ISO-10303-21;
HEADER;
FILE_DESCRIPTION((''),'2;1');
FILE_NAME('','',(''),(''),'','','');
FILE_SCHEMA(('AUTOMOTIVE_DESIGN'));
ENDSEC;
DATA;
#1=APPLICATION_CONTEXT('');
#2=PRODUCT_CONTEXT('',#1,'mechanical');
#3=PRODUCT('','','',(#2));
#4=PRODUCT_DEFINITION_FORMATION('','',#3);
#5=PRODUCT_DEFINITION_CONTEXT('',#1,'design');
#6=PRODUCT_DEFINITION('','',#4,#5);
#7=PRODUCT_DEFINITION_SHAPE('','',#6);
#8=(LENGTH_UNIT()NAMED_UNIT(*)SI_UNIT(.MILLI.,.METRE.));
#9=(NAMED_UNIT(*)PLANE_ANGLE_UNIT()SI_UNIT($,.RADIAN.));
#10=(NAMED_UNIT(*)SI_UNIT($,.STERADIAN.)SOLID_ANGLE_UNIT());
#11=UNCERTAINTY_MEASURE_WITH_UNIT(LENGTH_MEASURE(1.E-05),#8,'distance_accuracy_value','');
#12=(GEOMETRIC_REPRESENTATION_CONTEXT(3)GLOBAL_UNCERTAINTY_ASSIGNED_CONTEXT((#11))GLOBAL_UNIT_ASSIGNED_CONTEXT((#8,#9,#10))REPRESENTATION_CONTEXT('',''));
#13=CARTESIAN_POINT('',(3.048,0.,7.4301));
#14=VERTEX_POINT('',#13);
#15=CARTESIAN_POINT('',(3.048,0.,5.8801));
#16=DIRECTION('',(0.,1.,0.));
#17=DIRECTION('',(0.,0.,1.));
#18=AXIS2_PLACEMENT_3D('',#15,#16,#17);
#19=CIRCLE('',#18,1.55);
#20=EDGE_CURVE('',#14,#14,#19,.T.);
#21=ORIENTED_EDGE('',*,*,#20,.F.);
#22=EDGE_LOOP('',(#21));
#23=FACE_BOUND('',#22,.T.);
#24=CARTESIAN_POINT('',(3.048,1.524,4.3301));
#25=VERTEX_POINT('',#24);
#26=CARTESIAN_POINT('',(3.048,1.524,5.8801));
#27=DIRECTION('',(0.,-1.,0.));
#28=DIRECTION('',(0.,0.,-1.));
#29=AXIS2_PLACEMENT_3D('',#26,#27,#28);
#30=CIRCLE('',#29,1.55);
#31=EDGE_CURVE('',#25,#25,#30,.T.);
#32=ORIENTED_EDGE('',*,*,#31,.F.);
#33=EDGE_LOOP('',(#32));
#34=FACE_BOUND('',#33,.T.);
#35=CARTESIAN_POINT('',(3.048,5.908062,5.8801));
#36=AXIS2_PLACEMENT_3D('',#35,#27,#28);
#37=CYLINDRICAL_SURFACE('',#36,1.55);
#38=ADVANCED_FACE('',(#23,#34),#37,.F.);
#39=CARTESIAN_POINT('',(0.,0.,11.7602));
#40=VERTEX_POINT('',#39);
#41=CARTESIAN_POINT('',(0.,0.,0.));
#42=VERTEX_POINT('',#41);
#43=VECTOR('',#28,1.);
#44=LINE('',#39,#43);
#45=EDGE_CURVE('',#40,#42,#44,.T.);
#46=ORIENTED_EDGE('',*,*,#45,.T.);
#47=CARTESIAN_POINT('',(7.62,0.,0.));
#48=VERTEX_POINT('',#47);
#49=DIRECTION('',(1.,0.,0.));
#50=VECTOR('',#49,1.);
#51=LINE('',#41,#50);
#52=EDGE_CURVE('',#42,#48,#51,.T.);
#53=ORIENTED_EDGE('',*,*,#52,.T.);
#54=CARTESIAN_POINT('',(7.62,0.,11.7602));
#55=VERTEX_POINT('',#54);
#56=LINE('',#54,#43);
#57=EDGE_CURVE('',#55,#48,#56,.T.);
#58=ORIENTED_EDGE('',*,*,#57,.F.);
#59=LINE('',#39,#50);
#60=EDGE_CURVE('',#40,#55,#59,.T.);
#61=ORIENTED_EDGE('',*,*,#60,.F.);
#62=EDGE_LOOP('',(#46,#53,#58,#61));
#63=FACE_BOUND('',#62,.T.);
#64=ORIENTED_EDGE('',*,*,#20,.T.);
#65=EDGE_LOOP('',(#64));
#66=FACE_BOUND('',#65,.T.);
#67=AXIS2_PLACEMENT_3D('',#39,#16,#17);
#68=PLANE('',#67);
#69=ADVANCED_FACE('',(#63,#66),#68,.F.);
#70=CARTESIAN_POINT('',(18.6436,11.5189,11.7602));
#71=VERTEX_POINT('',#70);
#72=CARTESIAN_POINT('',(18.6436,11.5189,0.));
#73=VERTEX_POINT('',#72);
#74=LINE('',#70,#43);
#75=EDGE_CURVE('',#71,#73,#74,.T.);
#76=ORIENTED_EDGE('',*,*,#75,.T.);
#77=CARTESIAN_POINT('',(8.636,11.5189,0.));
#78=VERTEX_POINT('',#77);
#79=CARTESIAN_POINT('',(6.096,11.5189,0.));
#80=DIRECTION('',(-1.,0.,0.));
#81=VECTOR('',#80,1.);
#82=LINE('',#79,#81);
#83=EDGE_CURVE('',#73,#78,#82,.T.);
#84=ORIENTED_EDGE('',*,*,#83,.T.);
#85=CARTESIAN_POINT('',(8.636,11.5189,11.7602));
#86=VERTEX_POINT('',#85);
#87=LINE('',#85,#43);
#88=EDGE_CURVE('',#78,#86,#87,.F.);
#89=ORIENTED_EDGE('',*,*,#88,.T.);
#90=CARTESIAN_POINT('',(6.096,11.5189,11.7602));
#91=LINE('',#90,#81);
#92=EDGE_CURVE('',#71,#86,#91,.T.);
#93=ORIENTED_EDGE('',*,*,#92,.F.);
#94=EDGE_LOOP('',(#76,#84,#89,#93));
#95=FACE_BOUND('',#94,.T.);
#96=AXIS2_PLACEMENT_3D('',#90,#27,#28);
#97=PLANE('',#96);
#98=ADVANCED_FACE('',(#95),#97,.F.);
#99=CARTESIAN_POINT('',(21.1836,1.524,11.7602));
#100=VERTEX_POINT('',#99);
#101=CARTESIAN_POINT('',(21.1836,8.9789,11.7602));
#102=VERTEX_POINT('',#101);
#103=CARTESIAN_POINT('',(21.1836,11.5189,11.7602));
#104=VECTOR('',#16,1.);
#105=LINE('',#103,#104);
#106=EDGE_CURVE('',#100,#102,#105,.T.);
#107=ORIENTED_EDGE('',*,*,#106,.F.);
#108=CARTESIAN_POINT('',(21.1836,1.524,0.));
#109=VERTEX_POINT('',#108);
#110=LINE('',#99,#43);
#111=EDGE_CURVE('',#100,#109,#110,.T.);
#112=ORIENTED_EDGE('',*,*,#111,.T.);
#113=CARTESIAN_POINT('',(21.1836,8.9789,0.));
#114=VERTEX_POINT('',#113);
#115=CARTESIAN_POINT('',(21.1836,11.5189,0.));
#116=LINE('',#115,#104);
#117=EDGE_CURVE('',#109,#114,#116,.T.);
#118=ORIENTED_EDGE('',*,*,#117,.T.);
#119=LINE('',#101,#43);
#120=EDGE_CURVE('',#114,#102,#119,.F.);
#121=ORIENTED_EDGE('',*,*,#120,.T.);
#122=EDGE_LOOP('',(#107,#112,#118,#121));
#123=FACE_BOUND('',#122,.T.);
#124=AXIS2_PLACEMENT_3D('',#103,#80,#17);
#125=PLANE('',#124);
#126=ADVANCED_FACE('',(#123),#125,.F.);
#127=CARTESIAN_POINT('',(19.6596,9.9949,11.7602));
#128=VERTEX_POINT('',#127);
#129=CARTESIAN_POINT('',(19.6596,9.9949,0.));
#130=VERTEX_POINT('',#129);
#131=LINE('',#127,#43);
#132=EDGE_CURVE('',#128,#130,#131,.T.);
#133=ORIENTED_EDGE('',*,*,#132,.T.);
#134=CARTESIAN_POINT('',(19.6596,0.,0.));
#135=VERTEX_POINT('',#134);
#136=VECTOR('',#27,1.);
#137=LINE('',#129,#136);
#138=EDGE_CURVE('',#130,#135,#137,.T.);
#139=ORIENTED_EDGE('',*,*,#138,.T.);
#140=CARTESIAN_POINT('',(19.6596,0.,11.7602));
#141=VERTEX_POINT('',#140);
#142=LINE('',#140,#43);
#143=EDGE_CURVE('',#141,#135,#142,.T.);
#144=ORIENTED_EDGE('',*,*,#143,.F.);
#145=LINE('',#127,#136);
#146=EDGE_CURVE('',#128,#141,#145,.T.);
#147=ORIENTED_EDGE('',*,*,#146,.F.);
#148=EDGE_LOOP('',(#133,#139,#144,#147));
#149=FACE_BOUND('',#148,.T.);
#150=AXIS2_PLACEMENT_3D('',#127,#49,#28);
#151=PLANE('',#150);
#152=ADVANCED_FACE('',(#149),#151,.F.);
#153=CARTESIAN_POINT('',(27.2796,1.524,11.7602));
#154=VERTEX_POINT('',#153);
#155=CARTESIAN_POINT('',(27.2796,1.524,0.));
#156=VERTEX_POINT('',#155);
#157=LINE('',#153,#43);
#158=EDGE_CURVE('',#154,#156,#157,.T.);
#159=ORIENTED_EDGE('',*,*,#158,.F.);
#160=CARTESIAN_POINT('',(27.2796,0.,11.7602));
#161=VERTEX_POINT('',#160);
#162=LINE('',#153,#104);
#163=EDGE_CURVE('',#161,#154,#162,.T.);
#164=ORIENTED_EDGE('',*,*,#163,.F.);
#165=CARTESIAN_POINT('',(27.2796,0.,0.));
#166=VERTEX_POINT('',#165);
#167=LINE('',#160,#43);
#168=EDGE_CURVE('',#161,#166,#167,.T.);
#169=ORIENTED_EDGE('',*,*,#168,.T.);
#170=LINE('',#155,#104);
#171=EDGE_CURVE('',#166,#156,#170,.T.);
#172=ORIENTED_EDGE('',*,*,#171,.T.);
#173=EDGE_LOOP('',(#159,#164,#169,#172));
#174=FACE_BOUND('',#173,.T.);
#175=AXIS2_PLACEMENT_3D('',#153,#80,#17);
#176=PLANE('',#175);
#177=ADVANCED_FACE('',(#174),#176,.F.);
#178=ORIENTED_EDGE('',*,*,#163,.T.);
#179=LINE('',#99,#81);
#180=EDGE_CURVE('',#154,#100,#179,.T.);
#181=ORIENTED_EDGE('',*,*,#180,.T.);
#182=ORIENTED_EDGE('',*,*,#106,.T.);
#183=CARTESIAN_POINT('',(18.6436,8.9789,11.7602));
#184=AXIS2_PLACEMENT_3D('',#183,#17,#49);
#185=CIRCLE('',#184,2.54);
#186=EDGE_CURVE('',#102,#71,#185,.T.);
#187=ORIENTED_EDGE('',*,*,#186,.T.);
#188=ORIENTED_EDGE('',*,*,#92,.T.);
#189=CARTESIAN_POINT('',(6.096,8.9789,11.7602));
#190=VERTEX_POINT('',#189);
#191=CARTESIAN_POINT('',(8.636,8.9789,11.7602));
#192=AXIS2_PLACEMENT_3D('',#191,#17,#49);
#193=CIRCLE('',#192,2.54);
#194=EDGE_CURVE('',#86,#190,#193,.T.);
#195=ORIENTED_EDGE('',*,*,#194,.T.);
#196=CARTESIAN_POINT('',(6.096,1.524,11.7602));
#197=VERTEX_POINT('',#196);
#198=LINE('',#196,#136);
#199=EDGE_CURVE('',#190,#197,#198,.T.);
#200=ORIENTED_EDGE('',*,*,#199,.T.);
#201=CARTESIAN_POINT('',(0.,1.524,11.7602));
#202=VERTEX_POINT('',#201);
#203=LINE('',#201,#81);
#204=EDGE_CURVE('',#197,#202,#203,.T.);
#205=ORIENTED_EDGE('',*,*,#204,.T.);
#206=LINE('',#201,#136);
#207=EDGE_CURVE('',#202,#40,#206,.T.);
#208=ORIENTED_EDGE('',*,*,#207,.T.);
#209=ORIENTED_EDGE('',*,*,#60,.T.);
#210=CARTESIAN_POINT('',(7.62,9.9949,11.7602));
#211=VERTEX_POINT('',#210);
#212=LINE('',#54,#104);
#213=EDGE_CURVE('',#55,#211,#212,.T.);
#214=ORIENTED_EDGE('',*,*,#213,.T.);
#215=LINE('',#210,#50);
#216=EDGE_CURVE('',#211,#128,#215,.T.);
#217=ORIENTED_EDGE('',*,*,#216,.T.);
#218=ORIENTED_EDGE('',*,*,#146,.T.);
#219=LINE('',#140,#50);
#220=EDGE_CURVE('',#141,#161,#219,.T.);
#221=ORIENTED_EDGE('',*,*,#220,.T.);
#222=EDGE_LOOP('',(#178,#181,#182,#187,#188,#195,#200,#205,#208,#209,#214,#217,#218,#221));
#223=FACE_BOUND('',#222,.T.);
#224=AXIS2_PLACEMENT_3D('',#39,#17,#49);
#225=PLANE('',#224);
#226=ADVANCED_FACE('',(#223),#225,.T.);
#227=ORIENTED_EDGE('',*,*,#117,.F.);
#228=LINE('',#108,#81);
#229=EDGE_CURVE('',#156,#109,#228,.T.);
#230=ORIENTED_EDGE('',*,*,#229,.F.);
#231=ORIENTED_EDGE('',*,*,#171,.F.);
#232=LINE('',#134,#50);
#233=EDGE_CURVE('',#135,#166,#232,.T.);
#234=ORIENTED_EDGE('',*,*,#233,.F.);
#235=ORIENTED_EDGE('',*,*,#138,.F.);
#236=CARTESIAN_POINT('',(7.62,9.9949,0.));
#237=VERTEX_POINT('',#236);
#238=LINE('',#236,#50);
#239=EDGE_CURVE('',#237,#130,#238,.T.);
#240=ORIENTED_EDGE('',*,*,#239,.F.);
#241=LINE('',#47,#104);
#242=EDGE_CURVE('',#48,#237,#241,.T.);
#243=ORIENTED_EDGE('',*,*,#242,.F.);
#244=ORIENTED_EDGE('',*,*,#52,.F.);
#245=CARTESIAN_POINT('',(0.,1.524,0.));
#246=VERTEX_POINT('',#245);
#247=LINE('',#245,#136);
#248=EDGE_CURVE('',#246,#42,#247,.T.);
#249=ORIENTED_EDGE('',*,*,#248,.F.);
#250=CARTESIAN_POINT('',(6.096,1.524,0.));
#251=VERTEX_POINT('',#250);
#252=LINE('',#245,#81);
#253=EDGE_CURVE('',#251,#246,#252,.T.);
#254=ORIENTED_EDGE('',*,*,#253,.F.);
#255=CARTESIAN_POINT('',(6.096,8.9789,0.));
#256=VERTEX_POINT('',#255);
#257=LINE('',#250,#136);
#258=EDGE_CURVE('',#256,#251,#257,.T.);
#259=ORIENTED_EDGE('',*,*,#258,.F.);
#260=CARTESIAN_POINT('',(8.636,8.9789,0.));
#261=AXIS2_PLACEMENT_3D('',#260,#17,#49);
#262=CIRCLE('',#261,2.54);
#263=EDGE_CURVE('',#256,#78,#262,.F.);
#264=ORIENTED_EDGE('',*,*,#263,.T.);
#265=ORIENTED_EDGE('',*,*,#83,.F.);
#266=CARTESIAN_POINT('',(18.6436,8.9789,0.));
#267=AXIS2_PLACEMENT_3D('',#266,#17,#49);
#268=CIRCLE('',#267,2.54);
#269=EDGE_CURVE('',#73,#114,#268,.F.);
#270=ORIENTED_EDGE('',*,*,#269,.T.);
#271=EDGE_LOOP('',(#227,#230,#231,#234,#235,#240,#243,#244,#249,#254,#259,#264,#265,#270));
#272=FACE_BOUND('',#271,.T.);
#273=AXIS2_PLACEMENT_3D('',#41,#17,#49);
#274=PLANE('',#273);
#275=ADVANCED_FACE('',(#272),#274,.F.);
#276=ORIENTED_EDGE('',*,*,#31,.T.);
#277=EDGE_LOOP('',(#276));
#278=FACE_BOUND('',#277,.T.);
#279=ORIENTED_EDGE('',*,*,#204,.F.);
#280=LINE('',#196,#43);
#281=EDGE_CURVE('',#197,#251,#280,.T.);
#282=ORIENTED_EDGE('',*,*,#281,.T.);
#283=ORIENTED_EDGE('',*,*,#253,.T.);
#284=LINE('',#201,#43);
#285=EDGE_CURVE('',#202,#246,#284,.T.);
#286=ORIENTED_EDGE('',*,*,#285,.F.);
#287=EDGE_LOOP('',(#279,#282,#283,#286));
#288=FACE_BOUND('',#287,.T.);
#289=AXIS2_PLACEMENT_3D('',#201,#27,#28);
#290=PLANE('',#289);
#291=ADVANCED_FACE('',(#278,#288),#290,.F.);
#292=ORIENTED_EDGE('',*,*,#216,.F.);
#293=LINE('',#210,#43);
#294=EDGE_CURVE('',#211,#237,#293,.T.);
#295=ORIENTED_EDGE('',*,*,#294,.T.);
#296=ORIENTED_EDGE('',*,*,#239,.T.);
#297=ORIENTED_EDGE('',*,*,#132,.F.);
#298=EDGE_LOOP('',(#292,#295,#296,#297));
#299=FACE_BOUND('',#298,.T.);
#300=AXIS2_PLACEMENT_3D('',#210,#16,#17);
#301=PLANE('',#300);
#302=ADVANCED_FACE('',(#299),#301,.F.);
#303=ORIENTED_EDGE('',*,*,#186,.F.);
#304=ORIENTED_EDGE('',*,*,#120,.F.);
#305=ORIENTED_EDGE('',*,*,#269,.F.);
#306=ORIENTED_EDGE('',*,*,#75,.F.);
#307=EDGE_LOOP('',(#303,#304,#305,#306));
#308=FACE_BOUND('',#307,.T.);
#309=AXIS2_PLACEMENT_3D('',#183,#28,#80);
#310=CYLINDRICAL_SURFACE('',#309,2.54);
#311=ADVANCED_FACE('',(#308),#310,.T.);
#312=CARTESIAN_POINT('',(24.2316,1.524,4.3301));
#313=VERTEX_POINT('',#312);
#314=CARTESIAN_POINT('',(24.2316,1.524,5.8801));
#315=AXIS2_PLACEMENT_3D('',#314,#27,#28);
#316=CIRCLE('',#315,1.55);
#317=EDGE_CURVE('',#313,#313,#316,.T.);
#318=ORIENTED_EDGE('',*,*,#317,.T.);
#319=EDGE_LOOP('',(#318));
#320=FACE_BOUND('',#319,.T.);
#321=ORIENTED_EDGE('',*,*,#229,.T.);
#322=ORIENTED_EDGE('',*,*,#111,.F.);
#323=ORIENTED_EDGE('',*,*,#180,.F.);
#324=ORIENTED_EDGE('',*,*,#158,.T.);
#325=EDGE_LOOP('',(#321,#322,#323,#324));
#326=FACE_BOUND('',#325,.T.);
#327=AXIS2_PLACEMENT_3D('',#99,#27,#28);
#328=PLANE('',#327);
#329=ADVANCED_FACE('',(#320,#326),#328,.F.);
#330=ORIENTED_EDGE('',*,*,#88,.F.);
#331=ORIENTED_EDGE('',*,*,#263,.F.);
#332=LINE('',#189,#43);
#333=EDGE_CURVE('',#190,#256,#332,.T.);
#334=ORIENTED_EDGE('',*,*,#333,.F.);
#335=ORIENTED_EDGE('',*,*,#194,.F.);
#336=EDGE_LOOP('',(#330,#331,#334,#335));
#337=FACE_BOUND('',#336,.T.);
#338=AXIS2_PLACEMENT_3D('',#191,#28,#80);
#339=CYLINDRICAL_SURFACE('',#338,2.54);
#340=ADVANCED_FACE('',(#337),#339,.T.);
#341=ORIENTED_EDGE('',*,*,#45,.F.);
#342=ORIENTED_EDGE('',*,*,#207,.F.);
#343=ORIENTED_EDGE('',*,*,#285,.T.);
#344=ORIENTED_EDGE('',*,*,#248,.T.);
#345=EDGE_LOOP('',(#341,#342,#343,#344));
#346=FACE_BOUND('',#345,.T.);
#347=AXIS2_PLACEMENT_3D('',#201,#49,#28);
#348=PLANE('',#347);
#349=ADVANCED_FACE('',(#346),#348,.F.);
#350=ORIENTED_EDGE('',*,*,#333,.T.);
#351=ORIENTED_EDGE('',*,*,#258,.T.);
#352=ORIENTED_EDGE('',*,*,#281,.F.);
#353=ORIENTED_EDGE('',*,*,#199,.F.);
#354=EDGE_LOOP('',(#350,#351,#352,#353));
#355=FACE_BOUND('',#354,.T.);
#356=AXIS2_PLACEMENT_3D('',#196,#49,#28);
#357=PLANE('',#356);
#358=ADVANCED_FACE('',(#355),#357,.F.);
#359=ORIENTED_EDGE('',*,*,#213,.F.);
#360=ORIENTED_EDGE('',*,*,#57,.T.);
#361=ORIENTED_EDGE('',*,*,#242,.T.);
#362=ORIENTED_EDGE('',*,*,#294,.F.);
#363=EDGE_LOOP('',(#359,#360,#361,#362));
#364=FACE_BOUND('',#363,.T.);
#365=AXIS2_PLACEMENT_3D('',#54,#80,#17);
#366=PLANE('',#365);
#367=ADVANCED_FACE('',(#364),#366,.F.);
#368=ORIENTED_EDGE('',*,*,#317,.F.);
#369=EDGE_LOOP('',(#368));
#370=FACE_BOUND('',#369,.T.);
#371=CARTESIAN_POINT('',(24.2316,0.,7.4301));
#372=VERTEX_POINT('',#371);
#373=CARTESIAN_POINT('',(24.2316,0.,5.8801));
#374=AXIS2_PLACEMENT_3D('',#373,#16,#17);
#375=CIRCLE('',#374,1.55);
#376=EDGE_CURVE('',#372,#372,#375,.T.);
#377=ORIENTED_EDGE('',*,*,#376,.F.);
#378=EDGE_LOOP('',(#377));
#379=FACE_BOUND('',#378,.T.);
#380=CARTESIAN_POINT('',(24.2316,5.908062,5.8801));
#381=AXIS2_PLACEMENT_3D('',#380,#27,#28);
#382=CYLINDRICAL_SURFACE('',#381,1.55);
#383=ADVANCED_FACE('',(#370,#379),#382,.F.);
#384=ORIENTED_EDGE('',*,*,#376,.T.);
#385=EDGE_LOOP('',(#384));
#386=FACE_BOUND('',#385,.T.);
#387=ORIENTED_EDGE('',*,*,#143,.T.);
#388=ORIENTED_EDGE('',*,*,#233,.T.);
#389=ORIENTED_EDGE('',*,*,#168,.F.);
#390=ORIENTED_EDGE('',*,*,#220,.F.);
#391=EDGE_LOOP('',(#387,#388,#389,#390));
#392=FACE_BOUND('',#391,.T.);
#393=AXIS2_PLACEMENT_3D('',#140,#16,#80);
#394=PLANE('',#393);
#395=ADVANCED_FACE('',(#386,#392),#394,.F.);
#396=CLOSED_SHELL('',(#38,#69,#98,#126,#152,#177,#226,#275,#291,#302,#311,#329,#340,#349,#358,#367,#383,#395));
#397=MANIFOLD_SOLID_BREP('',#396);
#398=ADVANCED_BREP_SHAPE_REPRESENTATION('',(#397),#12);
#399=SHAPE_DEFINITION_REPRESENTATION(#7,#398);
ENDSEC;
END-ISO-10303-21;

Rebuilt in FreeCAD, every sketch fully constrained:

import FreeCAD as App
import Part
import Sketcher
Q = App.Units.Quantity


def edges_at(feature, points):
    """Names of the edges that pass closest to the given points."""
    edges = feature.Shape.Edges
    near = lambda p: min(range(len(edges)), key=lambda i: edges[i].distToShape(Part.Vertex(*p))[0])
    return sorted({f"Edge{near(p) + 1}" for p in points})

doc = App.newDocument("Part")
body = doc.addObject("PartDesign::Body", "Body")

# Sketch on XY plane
sketch1 = body.newObject("Sketcher::SketchObject", "Sketch")
sketch1.AttachmentSupport = (doc.getObject("XY_Plane"), [""])
sketch1.MapMode = "FlatFace"
sketch1.addGeometry([
    Part.LineSegment(App.Vector(0, 0, 0), App.Vector(7.62, 0, 0)),  # 0
    Part.LineSegment(App.Vector(7.62, 0, 0), App.Vector(7.62, 9.9949, 0)),  # 1
    Part.LineSegment(App.Vector(7.62, 9.9949, 0), App.Vector(19.6596, 9.9949, 0)),  # 2
    Part.LineSegment(App.Vector(19.6596, 9.9949, 0), App.Vector(19.6596, 0, 0)),  # 3
    Part.LineSegment(App.Vector(19.6596, 0, 0), App.Vector(27.2796, 0, 0)),  # 4
    Part.LineSegment(App.Vector(27.2796, 0, 0), App.Vector(27.2796, 1.524, 0)),  # 5
    Part.LineSegment(App.Vector(27.2796, 1.524, 0), App.Vector(21.1836, 1.524, 0)),  # 6
    Part.LineSegment(App.Vector(21.1836, 1.524, 0), App.Vector(21.1836, 11.5189, 0)),  # 7
    Part.LineSegment(App.Vector(21.1836, 11.5189, 0), App.Vector(6.096, 11.5189, 0)),  # 8
    Part.LineSegment(App.Vector(6.096, 11.5189, 0), App.Vector(6.096, 1.524, 0)),  # 9
    Part.LineSegment(App.Vector(6.096, 1.524, 0), App.Vector(0, 1.524, 0)),  # 10
    Part.LineSegment(App.Vector(0, 1.524, 0), App.Vector(0, 0, 0)),  # 11
], False)
sketch1.addConstraint([
    Sketcher.Constraint("Coincident", 0, 2, 1, 1),
    Sketcher.Constraint("Coincident", 1, 2, 2, 1),
    Sketcher.Constraint("Coincident", 2, 2, 3, 1),
    Sketcher.Constraint("Coincident", 3, 2, 4, 1),
    Sketcher.Constraint("Coincident", 4, 2, 5, 1),
    Sketcher.Constraint("Coincident", 5, 2, 6, 1),
    Sketcher.Constraint("Coincident", 6, 2, 7, 1),
    Sketcher.Constraint("Coincident", 7, 2, 8, 1),
    Sketcher.Constraint("Coincident", 8, 2, 9, 1),
    Sketcher.Constraint("Coincident", 9, 2, 10, 1),
    Sketcher.Constraint("Coincident", 10, 2, 11, 1),
    Sketcher.Constraint("Coincident", 11, 2, 0, 1),
    Sketcher.Constraint("Horizontal", 0),
    Sketcher.Constraint("Vertical", 1),
    Sketcher.Constraint("Horizontal", 2),
    Sketcher.Constraint("Vertical", 3),
    Sketcher.Constraint("Horizontal", 4),
    Sketcher.Constraint("Vertical", 5),
    Sketcher.Constraint("Horizontal", 6),
    Sketcher.Constraint("Vertical", 7),
    Sketcher.Constraint("Horizontal", 8),
    Sketcher.Constraint("Vertical", 9),
    Sketcher.Constraint("Horizontal", 10),
    Sketcher.Constraint("Vertical", 11),
    Sketcher.Constraint("Coincident", 11, 2, -1, 1),
    Sketcher.Constraint("PointOnObject", 3, 2, -1),
    Sketcher.Constraint("Horizontal", 6, 2, 9, 2),
    Sketcher.Constraint("Equal", 0, 4),
    Sketcher.Constraint("Equal", 6, 10),
    Sketcher.Constraint("Equal", 3, 7),
    Sketcher.Constraint("DistanceX", 0, 1, 0, 2, Q("0.3 in")),
    Sketcher.Constraint("DistanceX", 6, 2, 6, 1, Q("0.24 in")),
    Sketcher.Constraint("DistanceY", 5, 1, 5, 2, Q("0.06 in")),
    Sketcher.Constraint("DistanceX", 2, 1, 2, 2, Q("0.474 in")),
    Sketcher.Constraint("DistanceY", 1, 1, 1, 2, Q("0.3935 in")),
])
pad1 = body.newObject("PartDesign::Pad", "Pad")
pad1.Profile = sketch1
pad1.Length = Q("0.463 in")
doc.recompute()

fillet = body.newObject("PartDesign::Fillet", "Fillet")
fillet.Base = (pad1, edges_at(pad1, [(21.184, 11.519, 5.88)]))
fillet.Radius = Q("0.1 in")
doc.recompute()

fillet2 = body.newObject("PartDesign::Fillet", "Fillet001")
fillet2.Base = (fillet, edges_at(fillet, [(6.096, 11.519, 5.88)]))
fillet2.Radius = Q("0.1 in")

# Sketch on XZ plane
sketch2 = body.newObject("Sketcher::SketchObject", "Sketch001")
sketch2.AttachmentSupport = (doc.getObject("XZ_Plane"), [""])
sketch2.MapMode = "FlatFace"
sketch2.addGeometry([
    Part.Circle(App.Vector(3.048, 5.8801, 0), App.Vector(0, 0, 1), 1.55),
    Part.Circle(App.Vector(24.2316, 5.8801, 0), App.Vector(0, 0, 1), 1.55),
], False)
sketch2.addConstraint([
    Sketcher.Constraint("Equal", 0, 1),
    Sketcher.Constraint("Horizontal", 0, 3, 1, 3),
    Sketcher.Constraint("Diameter", 0, 3.1),
    Sketcher.Constraint("DistanceX", -1, 1, 0, 3, Q("0.12 in")),
    Sketcher.Constraint("DistanceX", -1, 1, 1, 3, Q("0.954 in")),
    Sketcher.Constraint("DistanceY", -1, 1, 0, 3, Q("0.2315 in")),
])
pocket1 = body.newObject("PartDesign::Pocket", "Pocket")
pocket1.Profile = sketch2
pocket1.Length = Q("0.06 in")

doc.recompute()
